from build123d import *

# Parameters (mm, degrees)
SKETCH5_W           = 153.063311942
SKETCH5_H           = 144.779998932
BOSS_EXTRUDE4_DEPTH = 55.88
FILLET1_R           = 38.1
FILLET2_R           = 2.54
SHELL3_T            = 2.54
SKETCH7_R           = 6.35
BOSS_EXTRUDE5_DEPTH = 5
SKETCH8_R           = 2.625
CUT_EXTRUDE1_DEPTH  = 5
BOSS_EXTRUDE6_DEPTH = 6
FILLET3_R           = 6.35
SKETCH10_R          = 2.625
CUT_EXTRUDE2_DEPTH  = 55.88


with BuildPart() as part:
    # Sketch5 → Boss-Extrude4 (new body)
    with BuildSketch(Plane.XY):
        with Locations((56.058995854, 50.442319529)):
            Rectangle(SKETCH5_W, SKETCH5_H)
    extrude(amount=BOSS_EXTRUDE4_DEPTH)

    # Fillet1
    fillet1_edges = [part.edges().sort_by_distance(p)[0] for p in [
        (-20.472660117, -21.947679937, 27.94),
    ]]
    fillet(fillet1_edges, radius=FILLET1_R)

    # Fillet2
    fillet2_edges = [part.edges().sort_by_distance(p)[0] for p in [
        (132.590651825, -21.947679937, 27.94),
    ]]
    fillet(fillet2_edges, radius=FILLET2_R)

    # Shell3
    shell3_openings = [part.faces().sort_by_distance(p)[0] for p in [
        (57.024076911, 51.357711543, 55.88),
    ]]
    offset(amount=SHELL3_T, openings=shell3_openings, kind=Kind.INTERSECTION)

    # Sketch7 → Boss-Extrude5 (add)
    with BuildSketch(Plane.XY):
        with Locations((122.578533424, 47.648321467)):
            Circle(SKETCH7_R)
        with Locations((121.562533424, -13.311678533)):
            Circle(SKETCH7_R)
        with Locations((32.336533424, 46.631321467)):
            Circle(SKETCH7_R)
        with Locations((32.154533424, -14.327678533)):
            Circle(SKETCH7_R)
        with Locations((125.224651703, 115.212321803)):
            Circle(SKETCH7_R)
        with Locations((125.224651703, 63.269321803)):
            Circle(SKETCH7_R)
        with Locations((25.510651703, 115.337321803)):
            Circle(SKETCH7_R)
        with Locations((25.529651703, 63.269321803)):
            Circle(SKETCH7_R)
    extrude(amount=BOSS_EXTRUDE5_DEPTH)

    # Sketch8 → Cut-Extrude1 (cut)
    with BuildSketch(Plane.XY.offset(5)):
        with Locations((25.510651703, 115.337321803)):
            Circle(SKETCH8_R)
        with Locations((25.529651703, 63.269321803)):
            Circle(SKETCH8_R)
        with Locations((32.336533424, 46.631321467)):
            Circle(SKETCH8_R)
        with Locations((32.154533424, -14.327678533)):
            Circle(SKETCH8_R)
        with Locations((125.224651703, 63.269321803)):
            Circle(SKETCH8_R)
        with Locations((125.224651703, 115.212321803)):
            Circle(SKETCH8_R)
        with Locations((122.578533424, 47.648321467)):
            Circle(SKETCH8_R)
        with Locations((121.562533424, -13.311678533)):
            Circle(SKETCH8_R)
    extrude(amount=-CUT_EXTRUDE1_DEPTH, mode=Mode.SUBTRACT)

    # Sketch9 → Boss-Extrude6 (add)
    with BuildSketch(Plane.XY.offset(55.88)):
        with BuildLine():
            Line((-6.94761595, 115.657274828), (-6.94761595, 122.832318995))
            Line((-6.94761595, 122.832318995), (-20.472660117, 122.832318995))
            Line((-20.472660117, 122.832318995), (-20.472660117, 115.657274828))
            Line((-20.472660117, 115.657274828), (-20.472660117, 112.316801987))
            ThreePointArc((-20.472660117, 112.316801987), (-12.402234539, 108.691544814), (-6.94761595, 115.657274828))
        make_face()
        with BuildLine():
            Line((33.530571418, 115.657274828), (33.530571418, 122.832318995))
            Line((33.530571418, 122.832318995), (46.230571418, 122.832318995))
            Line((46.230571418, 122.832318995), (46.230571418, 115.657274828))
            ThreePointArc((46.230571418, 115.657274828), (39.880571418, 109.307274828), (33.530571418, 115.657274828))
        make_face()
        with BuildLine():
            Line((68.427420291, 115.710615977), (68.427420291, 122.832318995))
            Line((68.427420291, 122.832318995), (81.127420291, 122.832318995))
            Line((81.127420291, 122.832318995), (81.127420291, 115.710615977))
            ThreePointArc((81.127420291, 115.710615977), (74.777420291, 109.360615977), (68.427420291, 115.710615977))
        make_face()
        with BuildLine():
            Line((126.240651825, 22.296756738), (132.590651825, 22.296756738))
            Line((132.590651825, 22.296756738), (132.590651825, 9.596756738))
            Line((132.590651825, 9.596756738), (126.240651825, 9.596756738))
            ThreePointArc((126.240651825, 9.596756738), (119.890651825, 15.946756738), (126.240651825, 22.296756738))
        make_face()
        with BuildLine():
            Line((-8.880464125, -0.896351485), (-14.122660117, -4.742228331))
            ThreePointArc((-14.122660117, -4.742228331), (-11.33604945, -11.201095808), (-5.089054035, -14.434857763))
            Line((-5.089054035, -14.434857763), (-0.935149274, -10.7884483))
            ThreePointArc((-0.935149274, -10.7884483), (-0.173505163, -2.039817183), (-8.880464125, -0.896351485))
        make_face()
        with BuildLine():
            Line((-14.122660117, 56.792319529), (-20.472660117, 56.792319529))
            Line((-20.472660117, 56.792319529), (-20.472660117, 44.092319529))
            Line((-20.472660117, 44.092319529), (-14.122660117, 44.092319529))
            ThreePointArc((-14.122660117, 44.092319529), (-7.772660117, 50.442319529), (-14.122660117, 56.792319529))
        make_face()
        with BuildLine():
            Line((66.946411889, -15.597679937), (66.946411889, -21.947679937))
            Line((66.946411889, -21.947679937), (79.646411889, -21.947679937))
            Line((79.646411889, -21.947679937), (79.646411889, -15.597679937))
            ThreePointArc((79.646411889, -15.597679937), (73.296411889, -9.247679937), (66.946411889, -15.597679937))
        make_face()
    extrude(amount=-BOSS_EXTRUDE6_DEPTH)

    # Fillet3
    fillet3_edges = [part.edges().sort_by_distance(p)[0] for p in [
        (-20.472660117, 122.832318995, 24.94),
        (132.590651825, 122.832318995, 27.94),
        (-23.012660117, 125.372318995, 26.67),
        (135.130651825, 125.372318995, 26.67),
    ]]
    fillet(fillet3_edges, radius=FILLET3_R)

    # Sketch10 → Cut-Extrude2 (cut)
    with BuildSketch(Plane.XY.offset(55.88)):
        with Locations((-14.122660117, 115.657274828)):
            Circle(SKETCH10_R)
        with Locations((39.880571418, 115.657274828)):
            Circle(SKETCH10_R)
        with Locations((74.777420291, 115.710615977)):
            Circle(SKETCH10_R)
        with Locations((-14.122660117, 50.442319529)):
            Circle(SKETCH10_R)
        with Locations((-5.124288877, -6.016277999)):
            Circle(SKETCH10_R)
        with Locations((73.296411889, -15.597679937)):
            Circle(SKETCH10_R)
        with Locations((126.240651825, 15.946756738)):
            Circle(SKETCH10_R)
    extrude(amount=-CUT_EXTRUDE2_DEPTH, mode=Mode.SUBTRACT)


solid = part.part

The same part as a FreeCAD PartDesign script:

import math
import FreeCAD as App
import Part
import Sketcher

V = App.Vector
Q = App.Units.Quantity


def edges_at(feature, points):
    """Names of the edges that pass closest to the given points."""
    edges = feature.Shape.Edges
    near = lambda p: min(range(len(edges)), key=lambda i: edges[i].distToShape(Part.Vertex(*p))[0])
    return sorted({f"Edge{near(p) + 1}" for p in points})


def faces_at(feature, points):
    """Names of the faces that lie closest to the given points."""
    faces = feature.Shape.Faces
    near = lambda p: min(range(len(faces)), key=lambda i: faces[i].distToShape(Part.Vertex(*p))[0])
    return sorted({f"Face{near(p) + 1}" for p in points})

doc = App.newDocument("Part")
params = doc.addObject("Spreadsheet::Sheet", "Params")
for row, (alias, value) in enumerate([
    ("sketch1_height", "5.7 in"),
    ("pad1_length", "2.2 in"),
    ("fillet_radius", "1.5 in"),
    ("fillet2_radius", "0.1 in"),
    ("thickness_wall", "0.1 in"),
    ("sketch2_diameter", "0.5 in"),
    ("pad2_length", "5 mm"),
    ("pocket1_length", "5 mm"),
    ("sketch4_radius", "0.25 in"),
    ("sketch4_width", "0.25 in"),
    ("pad3_length", "6 mm"),
    ("fillet3_radius", "0.25 in"),
    ("pocket2_length", "2.2 in"),
], start=1):
    params.set(f"A{row}", alias)
    params.set(f"B{row}", "=" + value)
    params.setAlias(f"B{row}", alias)

body = doc.addObject("PartDesign::Body", "Body")

# Sketch on XY plane
sketch1 = body.newObject("Sketcher::SketchObject", "Sketch")
sketch1.AttachmentSupport = (doc.getObject("XY_Plane"), [""])
sketch1.MapMode = "FlatFace"
sketch1.addGeometry([
    Part.LineSegment(V(-20.47266, 122.832319, 0), V(-20.47266, -21.94768, 0)),
    Part.LineSegment(V(-20.47266, -21.94768, 0), V(132.590652, -21.94768, 0)),
    Part.LineSegment(V(132.590652, -21.94768, 0), V(132.590652, 122.832319, 0)),
    Part.LineSegment(V(132.590652, 122.832319, 0), V(-20.47266, 122.832319, 0)),
], False)
sketch1.addConstraint([
    Sketcher.Constraint("Coincident", 0, 2, 1, 1),
    Sketcher.Constraint("Coincident", 1, 2, 2, 1),
    Sketcher.Constraint("Coincident", 2, 2, 3, 1),
    Sketcher.Constraint("Coincident", 3, 2, 0, 1),
    Sketcher.Constraint("Vertical", 0),
    Sketcher.Constraint("Horizontal", 1),
    Sketcher.Constraint("Vertical", 2),
    Sketcher.Constraint("Horizontal", 3),
    Sketcher.Constraint("DistanceY", 0, 2, 0, 1, Q("5.7 in")),
    Sketcher.Constraint("DistanceX", 1, 1, 1, 2, 153.063312),
    Sketcher.Constraint("DistanceX", 0, 2, -1, 1, 20.47266),
    Sketcher.Constraint("DistanceY", 0, 2, -1, 1, 21.94768),
])
sketch1.setExpression("Constraints[8]", "Params.sketch1_height")
pad1 = body.newObject("PartDesign::Pad", "Pad")
pad1.Profile = sketch1
pad1.setExpression("Length", "Params.pad1_length")
doc.recompute()

fillet = body.newObject("PartDesign::Fillet", "Fillet")
fillet.Base = (pad1, edges_at(pad1, [(-20.473, -21.948, 27.94)]))
fillet.setExpression("Radius", "Params.fillet_radius")
doc.recompute()

fillet2 = body.newObject("PartDesign::Fillet", "Fillet001")
fillet2.Base = (fillet, edges_at(fillet, [(132.591, -21.948, 27.94)]))
fillet2.setExpression("Radius", "Params.fillet2_radius")
doc.recompute()

thickness = body.newObject("PartDesign::Thickness", "Thickness")
thickness.Base = (fillet2, faces_at(fillet2, [(56.059, 50.442, 55.88)]))
thickness.setExpression("Value", "Params.thickness_wall")
thickness.Reversed = False
thickness.Join = "Intersection"

# Sketch on XY plane
sketch2 = body.newObject("Sketcher::SketchObject", "Sketch001")
sketch2.AttachmentSupport = (doc.getObject("XY_Plane"), [""])
sketch2.MapMode = "FlatFace"
sketch2.addGeometry([
    Part.Circle(V(122.578533, 47.648321, 0), V(0, 0, 1), 6.35),  # 0
    Part.Circle(V(121.562533, -13.311679, 0), V(0, 0, 1), 6.35),  # 1
    Part.Circle(V(32.336533, 46.631321, 0), V(0, 0, 1), 6.35),  # 2
    Part.Circle(V(32.154533, -14.327679, 0), V(0, 0, 1), 6.35),  # 3
    Part.Circle(V(125.224652, 115.212322, 0), V(0, 0, 1), 6.35),  # 4
    Part.Circle(V(125.224652, 63.269322, 0), V(0, 0, 1), 6.35),  # 5
    Part.Circle(V(25.510652, 115.337322, 0), V(0, 0, 1), 6.35),  # 6
    Part.Circle(V(25.529652, 63.269322, 0), V(0, 0, 1), 6.35),  # 7
], False)
sketch2.addConstraint([
    Sketcher.Constraint("Equal", 0, 1),
    Sketcher.Constraint("Equal", 1, 2),
    Sketcher.Constraint("Equal", 2, 3),
    Sketcher.Constraint("Equal", 3, 4),
    Sketcher.Constraint("Equal", 4, 5),
    Sketcher.Constraint("Equal", 5, 6),
    Sketcher.Constraint("Equal", 6, 7),
    Sketcher.Constraint("Horizontal", 5, 3, 7, 3),
    Sketcher.Constraint("Vertical", 4, 3, 5, 3),
    Sketcher.Constraint("Diameter", 0, Q("0.5 in")),
    Sketcher.Constraint("DistanceY", 1, 3, 0, 3, Q("2.4 in")),
    Sketcher.Constraint("DistanceY", 3, 3, 4, 3, Q("5.1 in")),
    Sketcher.Constraint("DistanceX", 1, 3, 0, 3, Q("0.04 in")),
    Sketcher.Constraint("DistanceX", 3, 3, 1, 3, Q("3.52 in")),
    Sketcher.Constraint("DistanceY", 3, 3, 1, 3, Q("0.04 in")),
    Sketcher.Constraint("DistanceY", 0, 3, 5, 3, Q("0.615 in")),
    Sketcher.Constraint("DistanceX", 7, 3, 5, 3, Q("3.925 in")),
    Sketcher.Constraint("DistanceX", 2, 3, 0, 3, 90.242),
    Sketcher.Constraint("DistanceY", 2, 3, 0, 3, 1.017),
    Sketcher.Constraint("DistanceY", 2, 3, 6, 3, 68.706),
    Sketcher.Constraint("DistanceX", 6, 3, 4, 3, 99.714),
    Sketcher.Constraint("DistanceY", -1, 1, 0, 3, 47.648321),
    Sketcher.Constraint("DistanceX", -1, 1, 4, 3, 125.224652),
    Sketcher.Constraint("DistanceX", 0, 3, 4, 3, 2.646118),
])
sketch2.setExpression("Constraints[9]", "Params.sketch2_diameter")
pad2 = body.newObject("PartDesign::Pad", "Pad001")
pad2.Profile = sketch2
pad2.setExpression("Length", "Params.pad2_length")

# Sketch on XY plane
sketch3 = body.newObject("Sketcher::SketchObject", "Sketch002")
sketch3.AttachmentSupport = (doc.getObject("XY_Plane"), [""])
sketch3.MapMode = "FlatFace"
sketch3.AttachmentOffset = App.Placement(V(0, 0, 5), App.Rotation())
sketch3.addGeometry([
    Part.Circle(V(25.510652, 115.337322, 0), V(0, 0, 1), 2.625),  # 0
    Part.Circle(V(25.529652, 63.269322, 0), V(0, 0, 1), 2.625),  # 1
    Part.Circle(V(32.336533, 46.631321, 0), V(0, 0, 1), 2.625),  # 2
    Part.Circle(V(32.154533, -14.327679, 0), V(0, 0, 1), 2.625),  # 3
    Part.Circle(V(125.224652, 63.269322, 0), V(0, 0, 1), 2.625),  # 4
    Part.Circle(V(125.224652, 115.212322, 0), V(0, 0, 1), 2.625),  # 5
    Part.Circle(V(122.578533, 47.648321, 0), V(0, 0, 1), 2.625),  # 6
    Part.Circle(V(121.562533, -13.311679, 0), V(0, 0, 1), 2.625),  # 7
], False)
sketch3.addConstraint([
    Sketcher.Constraint("Equal", 0, 1),
    Sketcher.Constraint("Equal", 1, 2),
    Sketcher.Constraint("Equal", 2, 3),
    Sketcher.Constraint("Equal", 3, 4),
    Sketcher.Constraint("Equal", 4, 5),
    Sketcher.Constraint("Equal", 5, 6),
    Sketcher.Constraint("Equal", 6, 7),
    Sketcher.Constraint("Horizontal", 1, 3, 4, 3),
    Sketcher.Constraint("Vertical", 4, 3, 5, 3),
    Sketcher.Constraint("DistanceY", 3, 3, 5, 3, Q("5.1 in")),
    Sketcher.Constraint("DistanceY", 7, 3, 6, 3, Q("2.4 in")),
    Sketcher.Constraint("Diameter", 0, 5.25),
    Sketcher.Constraint("DistanceY", 6, 3, 5, 3, Q("2.66 in")),
    Sketcher.Constraint("DistanceX", 3, 3, 6, 3, Q("3.56 in")),
    Sketcher.Constraint("DistanceX", 7, 3, 6, 3, Q("0.04 in")),
    Sketcher.Constraint("DistanceY", 3, 3, 1, 3, Q("3.055 in")),
    Sketcher.Constraint("DistanceX", 1, 3, 4, 3, Q("3.925 in")),
    Sketcher.Constraint("DistanceX", 0, 3, 1, 3, 0.019),
    Sketcher.Constraint("DistanceY", 1, 3, 0, 3, 52.068),
    Sketcher.Constraint("DistanceY", 2, 3, 1, 3, 16.638),
    Sketcher.Constraint("DistanceX", 3, 3, 2, 3, 0.182),
    Sketcher.Constraint("DistanceX", -1, 1, 0, 3, 25.510652),
    Sketcher.Constraint("DistanceY", -1, 1, 0, 3, 115.337322),
    Sketcher.Constraint("DistanceX", 1, 3, 2, 3, 6.806882),
])
pocket1 = body.newObject("PartDesign::Pocket", "Pocket")
pocket1.Profile = sketch3
pocket1.setExpression("Length", "Params.pocket1_length")

# Sketch on XY plane
sketch4 = body.newObject("Sketcher::SketchObject", "Sketch003")
sketch4.AttachmentSupport = (doc.getObject("XY_Plane"), [""])
sketch4.MapMode = "FlatFace"
sketch4.AttachmentOffset = App.Placement(V(0, 0, 2.2 * 25.4), App.Rotation())
sketch4.addGeometry([
    Part.LineSegment(V(-6.947616, 115.657275, 0), V(-6.947616, 122.832319, 0)),  # 0
    Part.LineSegment(V(-6.947616, 122.832319, 0), V(-20.47266, 122.832319, 0)),  # 1
    Part.LineSegment(V(-20.47266, 122.832319, 0), V(-20.47266, 112.316802, 0)),  # 2
    Part.ArcOfCircle(Part.Circle(V(-14.12266, 115.657275, 0), V(0, 0, 1), 7.175044), math.radians(-152.252995), math.radians(0)),  # 3
    Part.LineSegment(V(33.530571, 122.832319, 0), V(33.530571, 115.657275, 0)),  # 4
    Part.ArcOfCircle(Part.Circle(V(39.880571, 115.657275, 0), V(0, 0, 1), 6.35), math.radians(180), math.radians(360)),  # 5
    Part.LineSegment(V(46.230571, 115.657275, 0), V(46.230571, 122.832319, 0)),  # 6
    Part.LineSegment(V(46.230571, 122.832319, 0), V(33.530571, 122.832319, 0)),  # 7
    Part.LineSegment(V(68.42742, 122.832319, 0), V(68.42742, 115.710616, 0)),  # 8
    Part.ArcOfCircle(Part.Circle(V(74.77742, 115.710616, 0), V(0, 0, 1), 6.35), math.radians(180), math.radians(360)),  # 9
    Part.LineSegment(V(81.12742, 115.710616, 0), V(81.12742, 122.832319, 0)),  # 10
    Part.LineSegment(V(81.12742, 122.832319, 0), V(68.42742, 122.832319, 0)),  # 11
    Part.LineSegment(V(132.590652, 22.296757, 0), V(126.240652, 22.296757, 0)),  # 12
    Part.ArcOfCircle(Part.Circle(V(126.240652, 15.946757, 0), V(0, 0, 1), 6.35), math.radians(90), math.radians(270)),  # 13
    Part.LineSegment(V(126.240652, 9.596757, 0), V(132.590652, 9.596757, 0)),  # 14
    Part.LineSegment(V(132.590652, 9.596757, 0), V(132.590652, 22.296757, 0)),  # 15
    Part.LineSegment(V(-8.880464, -0.896351, 0), V(-14.12266, -4.742228, 0)),  # 16
    Part.ArcOfCircle(Part.Circle(V(-3.683625, -4.068977, 0), V(0, 0, 1), 10.460723), math.radians(-176.309897), math.radians(-97.721205)),  # 17
    Part.LineSegment(V(-5.089054, -14.434858, 0), V(-0.935149, -10.788448, 0)),  # 18
    Part.ArcOfCircle(Part.Circle(V(-5.124289, -6.016278, 0), V(0, 0, 1), 6.35), math.radians(-48.722467), math.radians(126.265207)),  # 19
    Part.LineSegment(V(-14.12266, 56.79232, 0), V(-20.47266, 56.79232, 0)),  # 20
    Part.LineSegment(V(-20.47266, 56.79232, 0), V(-20.47266, 44.09232, 0)),  # 21
    Part.LineSegment(V(-20.47266, 44.09232, 0), V(-14.12266, 44.09232, 0)),  # 22
    Part.ArcOfCircle(Part.Circle(V(-14.12266, 50.44232, 0), V(0, 0, 1), 6.35), math.radians(-90), math.radians(90)),  # 23
    Part.LineSegment(V(66.946412, -15.59768, 0), V(66.946412, -21.94768, 0)),  # 24
    Part.LineSegment(V(66.946412, -21.94768, 0), V(79.646412, -21.94768, 0)),  # 25
    Part.LineSegment(V(79.646412, -21.94768, 0), V(79.646412, -15.59768, 0)),  # 26
    Part.ArcOfCircle(Part.Circle(V(73.296412, -15.59768, 0), V(0, 0, 1), 6.35), math.radians(0), math.radians(180)),  # 27
], False)
sketch4.addConstraint([
    Sketcher.Constraint("Coincident", 0, 2, 1, 1),
    Sketcher.Constraint("Coincident", 1, 2, 2, 1),
    Sketcher.Constraint("Coincident", 2, 2, 3, 1),
    Sketcher.Constraint("Tangent", 3, 2, 0, 1),
    Sketcher.Constraint("Tangent", 4, 2, 5, 1),
    Sketcher.Constraint("Tangent", 5, 2, 6, 1),
    Sketcher.Constraint("Coincident", 6, 2, 7, 1),
    Sketcher.Constraint("Coincident", 7, 2, 4, 1),
    Sketcher.Constraint("Tangent", 8, 2, 9, 1),
    Sketcher.Constraint("Tangent", 9, 2, 10, 1),
    Sketcher.Constraint("Coincident", 10, 2, 11, 1),
    Sketcher.Constraint("Coincident", 11, 2, 8, 1),
    Sketcher.Constraint("Tangent", 12, 2, 13, 1),
    Sketcher.Constraint("Tangent", 13, 2, 14, 1),
    Sketcher.Constraint("Coincident", 14, 2, 15, 1),
    Sketcher.Constraint("Coincident", 15, 2, 12, 1),
    Sketcher.Constraint("Coincident", 16, 2, 17, 1),
    Sketcher.Constraint("Coincident", 17, 2, 18, 1),
    Sketcher.Constraint("Tangent", 18, 2, 19, 1),
    Sketcher.Constraint("Tangent", 19, 2, 16, 1),
    Sketcher.Constraint("Coincident", 20, 2, 21, 1),
    Sketcher.Constraint("Coincident", 21, 2, 22, 1),
    Sketcher.Constraint("Tangent", 22, 2, 23, 1),
    Sketcher.Constraint("Tangent", 23, 2, 20, 1),
    Sketcher.Constraint("Coincident", 24, 2, 25, 1),
    Sketcher.Constraint("Coincident", 25, 2, 26, 1),
    Sketcher.Constraint("Tangent", 26, 2, 27, 1),
    Sketcher.Constraint("Tangent", 27, 2, 24, 1),
    Sketcher.Constraint("Vertical", 0),
    Sketcher.Constraint("Horizontal", 1),
    Sketcher.Constraint("Vertical", 2),
    Sketcher.Constraint("Vertical", 4),
    Sketcher.Constraint("Vertical", 6),
    Sketcher.Constraint("Horizontal", 7),
    Sketcher.Constraint("Vertical", 8),
    Sketcher.Constraint("Vertical", 10),
    Sketcher.Constraint("Horizontal", 11),
    Sketcher.Constraint("Horizontal", 12),
    Sketcher.Constraint("Horizontal", 14),
    Sketcher.Constraint("Vertical", 15),
    Sketcher.Constraint("Horizontal", 20),
    Sketcher.Constraint("Vertical", 21),
    Sketcher.Constraint("Horizontal", 22),
    Sketcher.Constraint("Vertical", 24),
    Sketcher.Constraint("Horizontal", 25),
    Sketcher.Constraint("Vertical", 26),
    Sketcher.Constraint("Equal", 5, 9),
    Sketcher.Constraint("Equal", 9, 13),
    Sketcher.Constraint("Equal", 13, 19),
    Sketcher.Constraint("Equal", 19, 23),
    Sketcher.Constraint("Equal", 23, 27),
    Sketcher.Constraint("Horizontal", 3, 3, 5, 3),
    Sketcher.Constraint("Horizontal", 1, 2, 6, 2),
    Sketcher.Constraint("Horizontal", 7, 2, 10, 2),
    Sketcher.Constraint("Vertical", 3, 3, 23, 3),
    Sketcher.Constraint("Vertical", 23, 3, 16, 2),
    Sketcher.Constraint("Vertical", 2, 2, 20, 2),
    Sketcher.Constraint("Equal", 14, 20),
    Sketcher.Constraint("Equal", 22, 24),
    Sketcher.Constraint("Radius", 5, Q("0.25 in")),
    Sketcher.Constraint("DistanceX", 12, 2, 12, 1, Q("0.25 in")),
    Sketcher.Constraint("DistanceY", 27, 3, 23, 3, Q("2.6 in")),
    Sketcher.Constraint("DistanceY", 23, 3, 0, 2, Q("2.85 in")),
    Sketcher.Constraint("Radius", 3, 7.175044),
    Sketcher.Constraint("Radius", 17, 10.460723),
    Sketcher.Constraint("DistanceY", 5, 3, 9, 3, Q("0.0021 in")),
    Sketcher.Constraint("DistanceX", 19, 2, 17, 3, Q("0.2046 in")),
    Sketcher.Constraint("DistanceY", -1, 1, 2, 2, 112.316802),
    Sketcher.Constraint("DistanceY", 19, 3, 17, 3, 1.947301),
    Sketcher.Constraint("DistanceX", 19, 3, 27, 3, 78.420701),
    Sketcher.Constraint("DistanceY", 27, 3, 19, 3, 9.581402),
    Sketcher.Constraint("DistanceY", 0, 1, 0, 2, 7.175044),
    Sketcher.Constraint("DistanceX", 3, 3, -1, 1, 14.12266),
    Sketcher.Constraint("DistanceX", -1, 1, 5, 3, 39.880571),
    Sketcher.Constraint("DistanceX", -1, 1, 9, 3, 74.77742),
    Sketcher.Constraint("DistanceX", -1, 1, 13, 3, 126.240652),
    Sketcher.Constraint("DistanceX", 19, 3, -1, 1, 5.124289),
    Sketcher.Constraint("DistanceX", 18, 2, -1, 1, 0.935149),
    Sketcher.Constraint("DistanceY", 13, 3, 9, 3, 99.763859),
])
sketch4.setExpression("Constraints[59]", "Params.sketch4_radius")
sketch4.setExpression("Constraints[60]", "Params.sketch4_width")
pad3 = body.newObject("PartDesign::Pad", "Pad002")
pad3.Profile = sketch4
pad3.setExpression("Length", "Params.pad3_length")
pad3.Reversed = True
doc.recompute()

fillet3 = body.newObject("PartDesign::Fillet", "Fillet002")
fillet3.Base = (pad3, edges_at(pad3, [
    (-20.473, 122.832, 24.94),
    (132.591, 122.832, 27.94),
    (-23.013, 125.372, 26.67),
    (135.131, 125.372, 26.67),
]))
fillet3.setExpression("Radius", "Params.fillet3_radius")

# Sketch on XY plane
sketch5 = body.newObject("Sketcher::SketchObject", "Sketch004")
sketch5.AttachmentSupport = (doc.getObject("XY_Plane"), [""])
sketch5.MapMode = "FlatFace"
sketch5.AttachmentOffset = App.Placement(V(0, 0, 2.2 * 25.4), App.Rotation())
sketch5.addGeometry([
    Part.Circle(V(-14.12266, 115.657275, 0), V(0, 0, 1), 2.625),  # 0
    Part.Circle(V(39.880571, 115.657275, 0), V(0, 0, 1), 2.625),  # 1
    Part.Circle(V(74.77742, 115.710616, 0), V(0, 0, 1), 2.625),  # 2
    Part.Circle(V(-14.12266, 50.44232, 0), V(0, 0, 1), 2.625),  # 3
    Part.Circle(V(-5.124289, -6.016278, 0), V(0, 0, 1), 2.625),  # 4
    Part.Circle(V(73.296412, -15.59768, 0), V(0, 0, 1), 2.625),  # 5
    Part.Circle(V(126.240652, 15.946757, 0), V(0, 0, 1), 2.625),  # 6
], False)
sketch5.addConstraint([
    Sketcher.Constraint("Equal", 0, 1),
    Sketcher.Constraint("Equal", 1, 2),
    Sketcher.Constraint("Equal", 2, 3),
    Sketcher.Constraint("Equal", 3, 4),
    Sketcher.Constraint("Equal", 4, 5),
    Sketcher.Constraint("Equal", 5, 6),
    Sketcher.Constraint("Horizontal", 0, 3, 1, 3),
    Sketcher.Constraint("Vertical", 0, 3, 3, 3),
    Sketcher.Constraint("DistanceY", 5, 3, 3, 3, Q("2.6 in")),
    Sketcher.Constraint("Diameter", 0, 5.25),
    Sketcher.Constraint("DistanceY", 1, 3, 2, 3, Q("0.0021 in")),
    Sketcher.Constraint("DistanceX", 4, 3, 5, 3, 78.420701),
    Sketcher.Constraint("DistanceY", 5, 3, 4, 3, 9.581402),
    Sketcher.Constraint("DistanceX", 0, 3, -1, 1, 14.12266),
    Sketcher.Constraint("DistanceX", -1, 1, 1, 3, 39.880571),
    Sketcher.Constraint("DistanceX", -1, 1, 2, 3, 74.77742),
    Sketcher.Constraint("DistanceY", -1, 1, 3, 3, 50.44232),
    Sketcher.Constraint("DistanceX", 4, 3, -1, 1, 5.124289),
    Sketcher.Constraint("DistanceX", -1, 1, 6, 3, 126.240652),
    Sketcher.Constraint("DistanceY", 6, 3, 2, 3, 99.763859),
    Sketcher.Constraint("DistanceY", -1, 1, 0, 3, 115.657275),
])
pocket2 = body.newObject("PartDesign::Pocket", "Pocket001")
pocket2.Profile = sketch5
pocket2.setExpression("Length", "Params.pocket2_length")

doc.recompute()
